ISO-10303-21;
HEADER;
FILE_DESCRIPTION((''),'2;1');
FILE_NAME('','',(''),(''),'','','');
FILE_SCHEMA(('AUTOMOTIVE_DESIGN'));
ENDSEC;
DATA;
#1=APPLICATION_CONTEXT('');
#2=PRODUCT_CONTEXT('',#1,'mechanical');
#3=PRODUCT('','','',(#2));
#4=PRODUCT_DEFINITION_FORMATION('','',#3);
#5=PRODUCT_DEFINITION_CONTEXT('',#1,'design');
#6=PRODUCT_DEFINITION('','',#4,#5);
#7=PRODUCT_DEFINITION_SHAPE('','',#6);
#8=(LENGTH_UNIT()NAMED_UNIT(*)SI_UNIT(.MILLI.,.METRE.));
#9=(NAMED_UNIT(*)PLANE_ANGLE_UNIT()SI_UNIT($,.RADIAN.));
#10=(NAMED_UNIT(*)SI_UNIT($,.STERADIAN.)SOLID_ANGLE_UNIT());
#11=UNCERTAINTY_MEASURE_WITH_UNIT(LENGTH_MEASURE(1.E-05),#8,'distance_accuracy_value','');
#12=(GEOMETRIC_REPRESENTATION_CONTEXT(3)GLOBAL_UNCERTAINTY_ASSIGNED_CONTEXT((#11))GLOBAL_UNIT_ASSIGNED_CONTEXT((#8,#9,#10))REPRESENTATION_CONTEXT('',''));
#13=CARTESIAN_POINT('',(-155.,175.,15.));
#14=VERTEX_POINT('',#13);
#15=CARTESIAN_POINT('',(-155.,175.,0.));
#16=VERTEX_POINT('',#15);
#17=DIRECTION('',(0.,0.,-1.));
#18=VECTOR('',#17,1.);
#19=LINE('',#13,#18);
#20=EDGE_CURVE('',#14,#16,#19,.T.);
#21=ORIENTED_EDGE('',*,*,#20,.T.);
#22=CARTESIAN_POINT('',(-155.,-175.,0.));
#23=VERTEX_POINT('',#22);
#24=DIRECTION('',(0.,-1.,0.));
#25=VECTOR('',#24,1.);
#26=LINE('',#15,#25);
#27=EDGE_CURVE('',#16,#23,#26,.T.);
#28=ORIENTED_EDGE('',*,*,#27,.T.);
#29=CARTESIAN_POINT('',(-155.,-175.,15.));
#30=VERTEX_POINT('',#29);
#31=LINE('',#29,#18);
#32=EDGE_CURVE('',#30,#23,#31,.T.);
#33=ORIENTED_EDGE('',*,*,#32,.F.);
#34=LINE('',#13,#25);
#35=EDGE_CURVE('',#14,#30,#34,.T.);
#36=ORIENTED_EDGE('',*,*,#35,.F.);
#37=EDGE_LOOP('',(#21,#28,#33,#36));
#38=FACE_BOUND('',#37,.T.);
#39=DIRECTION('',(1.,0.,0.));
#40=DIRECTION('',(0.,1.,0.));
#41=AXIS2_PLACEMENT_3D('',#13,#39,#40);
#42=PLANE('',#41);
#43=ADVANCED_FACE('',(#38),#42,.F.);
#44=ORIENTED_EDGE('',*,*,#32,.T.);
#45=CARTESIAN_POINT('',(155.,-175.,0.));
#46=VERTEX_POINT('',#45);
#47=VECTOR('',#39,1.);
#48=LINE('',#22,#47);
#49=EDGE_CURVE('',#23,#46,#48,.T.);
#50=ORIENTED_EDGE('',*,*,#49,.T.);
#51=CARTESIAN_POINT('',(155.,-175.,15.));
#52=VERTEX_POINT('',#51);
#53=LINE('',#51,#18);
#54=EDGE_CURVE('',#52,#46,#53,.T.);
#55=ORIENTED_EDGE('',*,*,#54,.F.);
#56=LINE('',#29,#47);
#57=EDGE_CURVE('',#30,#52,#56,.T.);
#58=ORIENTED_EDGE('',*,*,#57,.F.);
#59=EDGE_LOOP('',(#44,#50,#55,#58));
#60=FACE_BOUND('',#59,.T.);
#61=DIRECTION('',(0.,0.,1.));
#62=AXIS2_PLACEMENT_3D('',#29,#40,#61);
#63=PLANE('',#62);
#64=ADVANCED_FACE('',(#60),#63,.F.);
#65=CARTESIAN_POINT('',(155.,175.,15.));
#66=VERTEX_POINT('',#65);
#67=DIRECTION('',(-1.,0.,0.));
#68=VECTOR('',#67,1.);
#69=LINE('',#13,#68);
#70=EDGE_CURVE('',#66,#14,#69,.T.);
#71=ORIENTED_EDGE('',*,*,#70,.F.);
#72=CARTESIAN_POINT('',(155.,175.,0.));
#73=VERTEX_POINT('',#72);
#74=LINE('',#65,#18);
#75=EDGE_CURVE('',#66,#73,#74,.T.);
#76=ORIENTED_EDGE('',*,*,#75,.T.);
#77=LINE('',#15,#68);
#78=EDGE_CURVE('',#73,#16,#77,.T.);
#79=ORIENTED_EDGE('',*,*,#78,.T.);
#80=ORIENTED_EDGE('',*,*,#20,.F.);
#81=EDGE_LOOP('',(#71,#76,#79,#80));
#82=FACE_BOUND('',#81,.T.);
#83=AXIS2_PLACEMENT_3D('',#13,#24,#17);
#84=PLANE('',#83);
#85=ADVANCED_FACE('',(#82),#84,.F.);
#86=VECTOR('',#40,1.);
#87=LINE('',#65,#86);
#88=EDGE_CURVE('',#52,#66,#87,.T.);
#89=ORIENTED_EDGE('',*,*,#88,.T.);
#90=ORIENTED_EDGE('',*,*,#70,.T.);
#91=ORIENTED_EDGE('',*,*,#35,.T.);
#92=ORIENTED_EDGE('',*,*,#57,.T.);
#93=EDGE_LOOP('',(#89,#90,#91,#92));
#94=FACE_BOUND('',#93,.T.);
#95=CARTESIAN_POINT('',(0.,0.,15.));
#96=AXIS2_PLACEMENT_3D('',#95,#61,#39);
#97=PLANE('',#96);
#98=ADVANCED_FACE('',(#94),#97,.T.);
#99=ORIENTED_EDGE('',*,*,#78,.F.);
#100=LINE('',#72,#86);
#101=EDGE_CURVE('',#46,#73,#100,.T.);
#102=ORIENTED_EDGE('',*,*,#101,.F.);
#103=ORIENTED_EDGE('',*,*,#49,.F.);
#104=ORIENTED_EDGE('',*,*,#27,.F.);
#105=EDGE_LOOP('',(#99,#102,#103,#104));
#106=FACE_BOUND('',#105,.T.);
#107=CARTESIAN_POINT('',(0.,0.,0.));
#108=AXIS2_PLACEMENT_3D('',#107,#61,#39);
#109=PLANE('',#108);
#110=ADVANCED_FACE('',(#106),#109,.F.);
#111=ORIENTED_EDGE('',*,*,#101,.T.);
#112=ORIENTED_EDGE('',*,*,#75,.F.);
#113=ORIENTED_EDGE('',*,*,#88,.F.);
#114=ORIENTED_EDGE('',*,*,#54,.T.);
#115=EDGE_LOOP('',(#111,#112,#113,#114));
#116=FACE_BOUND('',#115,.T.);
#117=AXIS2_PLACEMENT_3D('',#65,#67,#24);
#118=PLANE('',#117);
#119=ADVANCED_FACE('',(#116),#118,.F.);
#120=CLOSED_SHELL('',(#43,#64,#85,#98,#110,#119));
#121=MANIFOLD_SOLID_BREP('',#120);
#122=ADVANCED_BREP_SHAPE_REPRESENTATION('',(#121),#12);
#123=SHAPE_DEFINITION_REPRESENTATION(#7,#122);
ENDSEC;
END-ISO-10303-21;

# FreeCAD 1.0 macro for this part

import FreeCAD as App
import Part
import Sketcher

V = App.Vector

doc = App.newDocument("Part")
params = doc.addObject("Spreadsheet::Sheet", "Params")
for row, (alias, value) in enumerate([
    ("sketch1_width", "310 mm"),
    ("sketch1_height", "350 mm"),
    ("pad1_length", "15 mm"),
], start=1):
    params.set(f"A{row}", alias)
    params.set(f"B{row}", "=" + value)
    params.setAlias(f"B{row}", alias)

body = doc.addObject("PartDesign::Body", "Body")

# Sketch on XY plane
sketch1 = doc.addObject("Sketcher::SketchObject", "Sketch")
body.addObject(sketch1)
sketch1.AttachmentSupport = (doc.XY_Plane, [""])
sketch1.MapMode = "FlatFace"
sketch1.addGeometry([
    Part.LineSegment(V(-155, 175, 0), V(-155, -175, 0)),
    Part.LineSegment(V(-155, -175, 0), V(155, -175, 0)),
    Part.LineSegment(V(155, -175, 0), V(155, 175, 0)),
    Part.LineSegment(V(155, 175, 0), V(-155, 175, 0)),
], False)
sketch1.addConstraint([
    Sketcher.Constraint("Coincident", 0, 2, 1, 1),
    Sketcher.Constraint("Coincident", 1, 2, 2, 1),
    Sketcher.Constraint("Coincident", 2, 2, 3, 1),
    Sketcher.Constraint("Coincident", 3, 2, 0, 1),
    Sketcher.Constraint("Vertical", 0),
    Sketcher.Constraint("Horizontal", 1),
    Sketcher.Constraint("Vertical", 2),
    Sketcher.Constraint("Horizontal", 3),
    Sketcher.Constraint("Symmetric", 0, 2, 2, 2, -1, 1),
    Sketcher.Constraint("DistanceX", 1, 1, 1, 2, 310.0),
    Sketcher.Constraint("DistanceY", 0, 2, 0, 1, 350.0),
])
sketch1.setExpression("Constraints[9]", "Params.sketch1_width")
sketch1.setExpression("Constraints[10]", "Params.sketch1_height")
pad1 = doc.addObject("PartDesign::Pad", "Pad")
body.addObject(pad1)
pad1.Profile = sketch1
pad1.setExpression("Length", "Params.pad1_length")

doc.recompute()
